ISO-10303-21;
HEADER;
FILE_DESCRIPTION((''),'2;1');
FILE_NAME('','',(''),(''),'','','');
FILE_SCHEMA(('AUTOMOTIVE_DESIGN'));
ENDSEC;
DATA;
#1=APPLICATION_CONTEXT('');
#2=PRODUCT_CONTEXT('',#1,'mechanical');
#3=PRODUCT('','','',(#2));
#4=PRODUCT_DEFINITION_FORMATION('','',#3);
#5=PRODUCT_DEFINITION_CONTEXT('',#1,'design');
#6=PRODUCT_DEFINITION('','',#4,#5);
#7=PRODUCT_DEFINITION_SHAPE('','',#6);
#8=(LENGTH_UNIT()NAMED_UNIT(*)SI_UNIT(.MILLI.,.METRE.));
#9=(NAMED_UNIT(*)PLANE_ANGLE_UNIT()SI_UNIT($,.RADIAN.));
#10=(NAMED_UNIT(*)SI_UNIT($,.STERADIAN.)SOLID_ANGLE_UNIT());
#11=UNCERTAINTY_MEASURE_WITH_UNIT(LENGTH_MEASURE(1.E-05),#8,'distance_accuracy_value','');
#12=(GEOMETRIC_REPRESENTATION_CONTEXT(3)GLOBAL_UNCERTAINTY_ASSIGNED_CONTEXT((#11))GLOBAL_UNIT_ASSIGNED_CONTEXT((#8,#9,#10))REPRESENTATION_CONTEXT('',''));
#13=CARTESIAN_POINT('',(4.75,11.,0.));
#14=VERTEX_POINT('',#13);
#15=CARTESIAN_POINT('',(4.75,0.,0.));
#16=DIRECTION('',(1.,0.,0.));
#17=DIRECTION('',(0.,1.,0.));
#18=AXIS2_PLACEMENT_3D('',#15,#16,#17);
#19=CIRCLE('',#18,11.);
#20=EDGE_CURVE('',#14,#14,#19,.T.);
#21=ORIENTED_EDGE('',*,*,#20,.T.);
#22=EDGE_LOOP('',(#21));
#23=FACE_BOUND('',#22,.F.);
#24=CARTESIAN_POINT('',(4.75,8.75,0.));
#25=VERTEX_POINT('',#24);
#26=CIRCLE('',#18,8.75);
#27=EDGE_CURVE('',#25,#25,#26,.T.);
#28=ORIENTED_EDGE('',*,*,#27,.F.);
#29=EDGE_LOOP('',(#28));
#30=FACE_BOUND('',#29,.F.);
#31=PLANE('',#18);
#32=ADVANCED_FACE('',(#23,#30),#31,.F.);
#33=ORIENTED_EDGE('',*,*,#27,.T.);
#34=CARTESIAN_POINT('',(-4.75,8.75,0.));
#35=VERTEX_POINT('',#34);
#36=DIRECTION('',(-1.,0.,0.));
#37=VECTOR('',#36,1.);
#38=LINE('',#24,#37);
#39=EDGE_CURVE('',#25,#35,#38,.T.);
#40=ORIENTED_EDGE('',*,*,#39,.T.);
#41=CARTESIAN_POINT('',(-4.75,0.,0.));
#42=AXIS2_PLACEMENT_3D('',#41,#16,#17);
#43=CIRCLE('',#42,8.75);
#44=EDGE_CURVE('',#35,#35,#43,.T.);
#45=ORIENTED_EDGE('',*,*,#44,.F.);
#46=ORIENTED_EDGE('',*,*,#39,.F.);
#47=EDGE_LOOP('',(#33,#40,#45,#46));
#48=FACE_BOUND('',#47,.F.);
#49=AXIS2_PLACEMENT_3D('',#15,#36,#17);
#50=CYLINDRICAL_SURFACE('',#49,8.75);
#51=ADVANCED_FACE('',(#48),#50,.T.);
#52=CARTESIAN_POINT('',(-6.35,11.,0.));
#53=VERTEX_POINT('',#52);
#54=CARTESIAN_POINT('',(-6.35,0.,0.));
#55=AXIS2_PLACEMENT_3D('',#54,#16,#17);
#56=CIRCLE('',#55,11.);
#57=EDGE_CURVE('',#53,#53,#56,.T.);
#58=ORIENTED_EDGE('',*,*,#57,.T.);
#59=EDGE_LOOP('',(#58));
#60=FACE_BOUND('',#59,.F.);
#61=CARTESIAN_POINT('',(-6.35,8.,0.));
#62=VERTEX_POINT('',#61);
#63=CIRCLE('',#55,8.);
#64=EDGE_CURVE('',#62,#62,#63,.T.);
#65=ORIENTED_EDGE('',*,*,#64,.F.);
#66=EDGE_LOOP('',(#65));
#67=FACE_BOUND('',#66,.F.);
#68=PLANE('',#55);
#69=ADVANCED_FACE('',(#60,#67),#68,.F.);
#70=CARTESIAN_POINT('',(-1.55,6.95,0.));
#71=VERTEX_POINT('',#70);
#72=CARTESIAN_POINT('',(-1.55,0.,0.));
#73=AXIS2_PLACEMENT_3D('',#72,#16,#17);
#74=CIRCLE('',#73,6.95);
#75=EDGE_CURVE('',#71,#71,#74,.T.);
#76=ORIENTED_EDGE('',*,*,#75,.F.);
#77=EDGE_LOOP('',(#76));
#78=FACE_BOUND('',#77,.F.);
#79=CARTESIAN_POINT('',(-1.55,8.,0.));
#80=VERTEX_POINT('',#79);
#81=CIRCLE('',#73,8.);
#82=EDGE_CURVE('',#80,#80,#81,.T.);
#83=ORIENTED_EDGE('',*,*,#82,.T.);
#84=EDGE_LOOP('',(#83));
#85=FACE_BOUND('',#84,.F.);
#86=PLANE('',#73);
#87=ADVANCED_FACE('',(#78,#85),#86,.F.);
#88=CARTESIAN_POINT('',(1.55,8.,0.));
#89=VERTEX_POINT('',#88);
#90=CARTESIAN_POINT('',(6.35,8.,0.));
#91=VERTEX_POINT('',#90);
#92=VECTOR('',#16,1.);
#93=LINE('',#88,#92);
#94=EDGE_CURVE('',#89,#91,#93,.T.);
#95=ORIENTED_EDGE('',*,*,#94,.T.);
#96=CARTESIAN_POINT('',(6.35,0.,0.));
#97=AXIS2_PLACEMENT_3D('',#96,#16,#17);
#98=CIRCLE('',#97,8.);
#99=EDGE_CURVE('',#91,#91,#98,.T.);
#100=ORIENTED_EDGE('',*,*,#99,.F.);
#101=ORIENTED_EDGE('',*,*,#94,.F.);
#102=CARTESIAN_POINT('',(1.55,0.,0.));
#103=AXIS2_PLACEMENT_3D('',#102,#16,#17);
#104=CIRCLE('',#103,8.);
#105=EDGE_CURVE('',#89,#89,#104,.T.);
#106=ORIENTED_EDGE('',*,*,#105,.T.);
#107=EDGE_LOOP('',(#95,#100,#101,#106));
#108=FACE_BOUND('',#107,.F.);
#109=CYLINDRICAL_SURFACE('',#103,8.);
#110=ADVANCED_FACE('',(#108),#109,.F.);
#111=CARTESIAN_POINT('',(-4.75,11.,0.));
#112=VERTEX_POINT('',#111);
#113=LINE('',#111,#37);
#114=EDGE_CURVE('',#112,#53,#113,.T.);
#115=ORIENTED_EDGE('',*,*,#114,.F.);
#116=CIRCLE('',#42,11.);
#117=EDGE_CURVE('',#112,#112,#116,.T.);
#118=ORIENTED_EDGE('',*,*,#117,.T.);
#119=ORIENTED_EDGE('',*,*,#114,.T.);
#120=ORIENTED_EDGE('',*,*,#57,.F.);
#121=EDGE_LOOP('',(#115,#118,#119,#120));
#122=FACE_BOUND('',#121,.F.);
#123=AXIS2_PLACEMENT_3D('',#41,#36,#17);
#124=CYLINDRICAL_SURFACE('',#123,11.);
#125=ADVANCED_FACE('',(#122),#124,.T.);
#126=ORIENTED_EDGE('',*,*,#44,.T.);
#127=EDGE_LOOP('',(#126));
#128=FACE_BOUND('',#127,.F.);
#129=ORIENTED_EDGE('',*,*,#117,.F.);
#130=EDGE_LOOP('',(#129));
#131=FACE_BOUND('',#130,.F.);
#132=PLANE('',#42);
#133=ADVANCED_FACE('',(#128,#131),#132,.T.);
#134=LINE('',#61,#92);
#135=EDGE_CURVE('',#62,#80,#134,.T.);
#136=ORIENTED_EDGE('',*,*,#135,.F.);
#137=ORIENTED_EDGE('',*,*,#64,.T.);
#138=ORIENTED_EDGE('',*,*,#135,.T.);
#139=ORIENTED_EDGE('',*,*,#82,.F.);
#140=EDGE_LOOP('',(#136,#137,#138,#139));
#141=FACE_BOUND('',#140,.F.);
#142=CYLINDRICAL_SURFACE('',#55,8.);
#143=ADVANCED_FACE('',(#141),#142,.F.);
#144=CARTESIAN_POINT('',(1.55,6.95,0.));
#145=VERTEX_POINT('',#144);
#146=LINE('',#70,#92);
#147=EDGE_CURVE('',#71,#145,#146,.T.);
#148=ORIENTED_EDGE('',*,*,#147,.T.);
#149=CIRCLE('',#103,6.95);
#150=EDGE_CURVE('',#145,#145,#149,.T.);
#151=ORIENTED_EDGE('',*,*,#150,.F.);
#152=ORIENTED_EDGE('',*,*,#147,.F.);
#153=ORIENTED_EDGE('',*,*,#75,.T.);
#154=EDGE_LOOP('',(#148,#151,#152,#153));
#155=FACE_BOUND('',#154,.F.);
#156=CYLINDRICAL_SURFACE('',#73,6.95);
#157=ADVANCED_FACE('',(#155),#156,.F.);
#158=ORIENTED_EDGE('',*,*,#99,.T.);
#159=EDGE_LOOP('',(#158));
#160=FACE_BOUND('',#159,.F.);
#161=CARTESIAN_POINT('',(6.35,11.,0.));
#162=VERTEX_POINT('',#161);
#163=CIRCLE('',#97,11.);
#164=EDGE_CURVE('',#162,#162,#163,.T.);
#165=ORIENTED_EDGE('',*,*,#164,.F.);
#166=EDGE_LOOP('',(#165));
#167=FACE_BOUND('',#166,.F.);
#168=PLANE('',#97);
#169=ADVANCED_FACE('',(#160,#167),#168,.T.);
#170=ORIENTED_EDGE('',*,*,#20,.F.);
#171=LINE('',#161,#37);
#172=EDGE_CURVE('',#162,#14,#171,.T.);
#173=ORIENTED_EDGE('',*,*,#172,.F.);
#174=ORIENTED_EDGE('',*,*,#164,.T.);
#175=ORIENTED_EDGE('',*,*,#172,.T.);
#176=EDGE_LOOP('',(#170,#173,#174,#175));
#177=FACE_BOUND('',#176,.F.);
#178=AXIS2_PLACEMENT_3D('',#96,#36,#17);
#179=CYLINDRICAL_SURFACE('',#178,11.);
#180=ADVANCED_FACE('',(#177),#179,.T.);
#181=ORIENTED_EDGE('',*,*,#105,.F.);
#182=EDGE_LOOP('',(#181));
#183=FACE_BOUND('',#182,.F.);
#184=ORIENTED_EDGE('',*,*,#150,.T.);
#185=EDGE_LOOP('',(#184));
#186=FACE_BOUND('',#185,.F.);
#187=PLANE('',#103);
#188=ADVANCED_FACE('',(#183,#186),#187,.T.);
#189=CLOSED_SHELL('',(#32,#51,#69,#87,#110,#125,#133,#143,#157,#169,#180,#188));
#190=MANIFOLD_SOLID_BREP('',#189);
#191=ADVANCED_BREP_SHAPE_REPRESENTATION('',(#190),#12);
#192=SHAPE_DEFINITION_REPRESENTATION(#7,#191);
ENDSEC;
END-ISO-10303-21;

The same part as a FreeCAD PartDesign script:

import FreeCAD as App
import Part
import Sketcher
from FreeCAD import Vector
Q = App.Units.Quantity


def add_polygon(sketch, points):
    """Adds a closed chain of lines whose ends are joined by coincident constraints."""
    first, n = sketch.GeometryCount, len(points)
    for a, b in zip(points, points[1:] + points[:1]):
        sketch.addGeometry(Part.LineSegment(App.Vector(*a, 0), App.Vector(*b, 0)), False)
    for i in range(n):
        sketch.addConstraint(Sketcher.Constraint("Coincident", first + i, 2, first + (i + 1) % n, 1))

doc = App.newDocument("Part")
params = doc.addObject("Spreadsheet::Sheet", "Params")
for row, (alias, value) in enumerate([
    ("sketch1_height", "3 mm"),
    ("sketch1_width", "3.1 mm"),
    ("sketch1_width2", "4.8 mm"),
    ("sketch1_width3", "1.6 mm"),
    ("sketch1_height2", "1.05 mm"),
    ("revolution_angle", "360 deg"),
], start=1):
    params.set(f"A{row}", alias)
    params.set(f"B{row}", "=" + value)
    params.setAlias(f"B{row}", alias)

body = doc.addObject("PartDesign::Body", "Body")

# Sketch on XY plane
sketch1 = body.newObject("Sketcher::SketchObject", "Sketch")
sketch1.AttachmentSupport = (doc.getObject("XY_Plane"), [""])
sketch1.MapMode = "FlatFace"
add_polygon(sketch1, [(-1.6, 8), (-1.6, 7), (1.6, 7), (1.6, 8), (6.3, 8), (6.3, 11), (4.8, 11), (4.8, 8.8), (-4.8, 8.8), (-4.8, 11), (-6.3, 11), (-6.3, 8)])  # lines 0-11
sketch1.addConstraint([
    Sketcher.Constraint("Vertical", 0),
    Sketcher.Constraint("Horizontal", 1),
    Sketcher.Constraint("Vertical", 2),
    Sketcher.Constraint("Horizontal", 3),
    Sketcher.Constraint("Vertical", 4),
    Sketcher.Constraint("Horizontal", 5),
    Sketcher.Constraint("Vertical", 6),
    Sketcher.Constraint("Horizontal", 7),
    Sketcher.Constraint("Vertical", 8),
    Sketcher.Constraint("Horizontal", 9),
    Sketcher.Constraint("Vertical", 10),
    Sketcher.Constraint("Horizontal", 11),
    Sketcher.Constraint("Symmetric", 5, 2, 8, 2, -2),
    Sketcher.Constraint("Symmetric", 3, 2, 10, 2, -2),
    Sketcher.Constraint("Equal", 3, 11),
    Sketcher.Constraint("DistanceY", 4, 1, 4, 2, Q("3 mm")),
    Sketcher.Constraint("DistanceX", 1, 1, 1, 2, Q("3.1 mm")),
    Sketcher.Constraint("DistanceX", 3, 1, 3, 2, Q("4.8 mm")),
    Sketcher.Constraint("DistanceX", 5, 2, 5, 1, Q("1.6 mm")),
    Sketcher.Constraint("DistanceY", -1, 1, 2, 2, Q("8 mm")),
    Sketcher.Constraint("DistanceY", 0, 2, 0, 1, Q("1.05 mm")),
    Sketcher.Constraint("DistanceY", 6, 2, 6, 1, Q("2.25 mm")),
])
sketch1.setExpression("Constraints[27]", "Params.sketch1_height")
sketch1.setExpression("Constraints[28]", "Params.sketch1_width")
sketch1.setExpression("Constraints[29]", "Params.sketch1_width2")
sketch1.setExpression("Constraints[30]", "Params.sketch1_width3")
sketch1.setExpression("Constraints[32]", "Params.sketch1_height2")
revolution = body.newObject("PartDesign::Revolution", "Revolution")
revolution.Profile = sketch1
revolution.ReferenceAxis = (sketch1, ["H_Axis"])
revolution.setExpression("Angle", "Params.revolution_angle")

doc.recompute()
